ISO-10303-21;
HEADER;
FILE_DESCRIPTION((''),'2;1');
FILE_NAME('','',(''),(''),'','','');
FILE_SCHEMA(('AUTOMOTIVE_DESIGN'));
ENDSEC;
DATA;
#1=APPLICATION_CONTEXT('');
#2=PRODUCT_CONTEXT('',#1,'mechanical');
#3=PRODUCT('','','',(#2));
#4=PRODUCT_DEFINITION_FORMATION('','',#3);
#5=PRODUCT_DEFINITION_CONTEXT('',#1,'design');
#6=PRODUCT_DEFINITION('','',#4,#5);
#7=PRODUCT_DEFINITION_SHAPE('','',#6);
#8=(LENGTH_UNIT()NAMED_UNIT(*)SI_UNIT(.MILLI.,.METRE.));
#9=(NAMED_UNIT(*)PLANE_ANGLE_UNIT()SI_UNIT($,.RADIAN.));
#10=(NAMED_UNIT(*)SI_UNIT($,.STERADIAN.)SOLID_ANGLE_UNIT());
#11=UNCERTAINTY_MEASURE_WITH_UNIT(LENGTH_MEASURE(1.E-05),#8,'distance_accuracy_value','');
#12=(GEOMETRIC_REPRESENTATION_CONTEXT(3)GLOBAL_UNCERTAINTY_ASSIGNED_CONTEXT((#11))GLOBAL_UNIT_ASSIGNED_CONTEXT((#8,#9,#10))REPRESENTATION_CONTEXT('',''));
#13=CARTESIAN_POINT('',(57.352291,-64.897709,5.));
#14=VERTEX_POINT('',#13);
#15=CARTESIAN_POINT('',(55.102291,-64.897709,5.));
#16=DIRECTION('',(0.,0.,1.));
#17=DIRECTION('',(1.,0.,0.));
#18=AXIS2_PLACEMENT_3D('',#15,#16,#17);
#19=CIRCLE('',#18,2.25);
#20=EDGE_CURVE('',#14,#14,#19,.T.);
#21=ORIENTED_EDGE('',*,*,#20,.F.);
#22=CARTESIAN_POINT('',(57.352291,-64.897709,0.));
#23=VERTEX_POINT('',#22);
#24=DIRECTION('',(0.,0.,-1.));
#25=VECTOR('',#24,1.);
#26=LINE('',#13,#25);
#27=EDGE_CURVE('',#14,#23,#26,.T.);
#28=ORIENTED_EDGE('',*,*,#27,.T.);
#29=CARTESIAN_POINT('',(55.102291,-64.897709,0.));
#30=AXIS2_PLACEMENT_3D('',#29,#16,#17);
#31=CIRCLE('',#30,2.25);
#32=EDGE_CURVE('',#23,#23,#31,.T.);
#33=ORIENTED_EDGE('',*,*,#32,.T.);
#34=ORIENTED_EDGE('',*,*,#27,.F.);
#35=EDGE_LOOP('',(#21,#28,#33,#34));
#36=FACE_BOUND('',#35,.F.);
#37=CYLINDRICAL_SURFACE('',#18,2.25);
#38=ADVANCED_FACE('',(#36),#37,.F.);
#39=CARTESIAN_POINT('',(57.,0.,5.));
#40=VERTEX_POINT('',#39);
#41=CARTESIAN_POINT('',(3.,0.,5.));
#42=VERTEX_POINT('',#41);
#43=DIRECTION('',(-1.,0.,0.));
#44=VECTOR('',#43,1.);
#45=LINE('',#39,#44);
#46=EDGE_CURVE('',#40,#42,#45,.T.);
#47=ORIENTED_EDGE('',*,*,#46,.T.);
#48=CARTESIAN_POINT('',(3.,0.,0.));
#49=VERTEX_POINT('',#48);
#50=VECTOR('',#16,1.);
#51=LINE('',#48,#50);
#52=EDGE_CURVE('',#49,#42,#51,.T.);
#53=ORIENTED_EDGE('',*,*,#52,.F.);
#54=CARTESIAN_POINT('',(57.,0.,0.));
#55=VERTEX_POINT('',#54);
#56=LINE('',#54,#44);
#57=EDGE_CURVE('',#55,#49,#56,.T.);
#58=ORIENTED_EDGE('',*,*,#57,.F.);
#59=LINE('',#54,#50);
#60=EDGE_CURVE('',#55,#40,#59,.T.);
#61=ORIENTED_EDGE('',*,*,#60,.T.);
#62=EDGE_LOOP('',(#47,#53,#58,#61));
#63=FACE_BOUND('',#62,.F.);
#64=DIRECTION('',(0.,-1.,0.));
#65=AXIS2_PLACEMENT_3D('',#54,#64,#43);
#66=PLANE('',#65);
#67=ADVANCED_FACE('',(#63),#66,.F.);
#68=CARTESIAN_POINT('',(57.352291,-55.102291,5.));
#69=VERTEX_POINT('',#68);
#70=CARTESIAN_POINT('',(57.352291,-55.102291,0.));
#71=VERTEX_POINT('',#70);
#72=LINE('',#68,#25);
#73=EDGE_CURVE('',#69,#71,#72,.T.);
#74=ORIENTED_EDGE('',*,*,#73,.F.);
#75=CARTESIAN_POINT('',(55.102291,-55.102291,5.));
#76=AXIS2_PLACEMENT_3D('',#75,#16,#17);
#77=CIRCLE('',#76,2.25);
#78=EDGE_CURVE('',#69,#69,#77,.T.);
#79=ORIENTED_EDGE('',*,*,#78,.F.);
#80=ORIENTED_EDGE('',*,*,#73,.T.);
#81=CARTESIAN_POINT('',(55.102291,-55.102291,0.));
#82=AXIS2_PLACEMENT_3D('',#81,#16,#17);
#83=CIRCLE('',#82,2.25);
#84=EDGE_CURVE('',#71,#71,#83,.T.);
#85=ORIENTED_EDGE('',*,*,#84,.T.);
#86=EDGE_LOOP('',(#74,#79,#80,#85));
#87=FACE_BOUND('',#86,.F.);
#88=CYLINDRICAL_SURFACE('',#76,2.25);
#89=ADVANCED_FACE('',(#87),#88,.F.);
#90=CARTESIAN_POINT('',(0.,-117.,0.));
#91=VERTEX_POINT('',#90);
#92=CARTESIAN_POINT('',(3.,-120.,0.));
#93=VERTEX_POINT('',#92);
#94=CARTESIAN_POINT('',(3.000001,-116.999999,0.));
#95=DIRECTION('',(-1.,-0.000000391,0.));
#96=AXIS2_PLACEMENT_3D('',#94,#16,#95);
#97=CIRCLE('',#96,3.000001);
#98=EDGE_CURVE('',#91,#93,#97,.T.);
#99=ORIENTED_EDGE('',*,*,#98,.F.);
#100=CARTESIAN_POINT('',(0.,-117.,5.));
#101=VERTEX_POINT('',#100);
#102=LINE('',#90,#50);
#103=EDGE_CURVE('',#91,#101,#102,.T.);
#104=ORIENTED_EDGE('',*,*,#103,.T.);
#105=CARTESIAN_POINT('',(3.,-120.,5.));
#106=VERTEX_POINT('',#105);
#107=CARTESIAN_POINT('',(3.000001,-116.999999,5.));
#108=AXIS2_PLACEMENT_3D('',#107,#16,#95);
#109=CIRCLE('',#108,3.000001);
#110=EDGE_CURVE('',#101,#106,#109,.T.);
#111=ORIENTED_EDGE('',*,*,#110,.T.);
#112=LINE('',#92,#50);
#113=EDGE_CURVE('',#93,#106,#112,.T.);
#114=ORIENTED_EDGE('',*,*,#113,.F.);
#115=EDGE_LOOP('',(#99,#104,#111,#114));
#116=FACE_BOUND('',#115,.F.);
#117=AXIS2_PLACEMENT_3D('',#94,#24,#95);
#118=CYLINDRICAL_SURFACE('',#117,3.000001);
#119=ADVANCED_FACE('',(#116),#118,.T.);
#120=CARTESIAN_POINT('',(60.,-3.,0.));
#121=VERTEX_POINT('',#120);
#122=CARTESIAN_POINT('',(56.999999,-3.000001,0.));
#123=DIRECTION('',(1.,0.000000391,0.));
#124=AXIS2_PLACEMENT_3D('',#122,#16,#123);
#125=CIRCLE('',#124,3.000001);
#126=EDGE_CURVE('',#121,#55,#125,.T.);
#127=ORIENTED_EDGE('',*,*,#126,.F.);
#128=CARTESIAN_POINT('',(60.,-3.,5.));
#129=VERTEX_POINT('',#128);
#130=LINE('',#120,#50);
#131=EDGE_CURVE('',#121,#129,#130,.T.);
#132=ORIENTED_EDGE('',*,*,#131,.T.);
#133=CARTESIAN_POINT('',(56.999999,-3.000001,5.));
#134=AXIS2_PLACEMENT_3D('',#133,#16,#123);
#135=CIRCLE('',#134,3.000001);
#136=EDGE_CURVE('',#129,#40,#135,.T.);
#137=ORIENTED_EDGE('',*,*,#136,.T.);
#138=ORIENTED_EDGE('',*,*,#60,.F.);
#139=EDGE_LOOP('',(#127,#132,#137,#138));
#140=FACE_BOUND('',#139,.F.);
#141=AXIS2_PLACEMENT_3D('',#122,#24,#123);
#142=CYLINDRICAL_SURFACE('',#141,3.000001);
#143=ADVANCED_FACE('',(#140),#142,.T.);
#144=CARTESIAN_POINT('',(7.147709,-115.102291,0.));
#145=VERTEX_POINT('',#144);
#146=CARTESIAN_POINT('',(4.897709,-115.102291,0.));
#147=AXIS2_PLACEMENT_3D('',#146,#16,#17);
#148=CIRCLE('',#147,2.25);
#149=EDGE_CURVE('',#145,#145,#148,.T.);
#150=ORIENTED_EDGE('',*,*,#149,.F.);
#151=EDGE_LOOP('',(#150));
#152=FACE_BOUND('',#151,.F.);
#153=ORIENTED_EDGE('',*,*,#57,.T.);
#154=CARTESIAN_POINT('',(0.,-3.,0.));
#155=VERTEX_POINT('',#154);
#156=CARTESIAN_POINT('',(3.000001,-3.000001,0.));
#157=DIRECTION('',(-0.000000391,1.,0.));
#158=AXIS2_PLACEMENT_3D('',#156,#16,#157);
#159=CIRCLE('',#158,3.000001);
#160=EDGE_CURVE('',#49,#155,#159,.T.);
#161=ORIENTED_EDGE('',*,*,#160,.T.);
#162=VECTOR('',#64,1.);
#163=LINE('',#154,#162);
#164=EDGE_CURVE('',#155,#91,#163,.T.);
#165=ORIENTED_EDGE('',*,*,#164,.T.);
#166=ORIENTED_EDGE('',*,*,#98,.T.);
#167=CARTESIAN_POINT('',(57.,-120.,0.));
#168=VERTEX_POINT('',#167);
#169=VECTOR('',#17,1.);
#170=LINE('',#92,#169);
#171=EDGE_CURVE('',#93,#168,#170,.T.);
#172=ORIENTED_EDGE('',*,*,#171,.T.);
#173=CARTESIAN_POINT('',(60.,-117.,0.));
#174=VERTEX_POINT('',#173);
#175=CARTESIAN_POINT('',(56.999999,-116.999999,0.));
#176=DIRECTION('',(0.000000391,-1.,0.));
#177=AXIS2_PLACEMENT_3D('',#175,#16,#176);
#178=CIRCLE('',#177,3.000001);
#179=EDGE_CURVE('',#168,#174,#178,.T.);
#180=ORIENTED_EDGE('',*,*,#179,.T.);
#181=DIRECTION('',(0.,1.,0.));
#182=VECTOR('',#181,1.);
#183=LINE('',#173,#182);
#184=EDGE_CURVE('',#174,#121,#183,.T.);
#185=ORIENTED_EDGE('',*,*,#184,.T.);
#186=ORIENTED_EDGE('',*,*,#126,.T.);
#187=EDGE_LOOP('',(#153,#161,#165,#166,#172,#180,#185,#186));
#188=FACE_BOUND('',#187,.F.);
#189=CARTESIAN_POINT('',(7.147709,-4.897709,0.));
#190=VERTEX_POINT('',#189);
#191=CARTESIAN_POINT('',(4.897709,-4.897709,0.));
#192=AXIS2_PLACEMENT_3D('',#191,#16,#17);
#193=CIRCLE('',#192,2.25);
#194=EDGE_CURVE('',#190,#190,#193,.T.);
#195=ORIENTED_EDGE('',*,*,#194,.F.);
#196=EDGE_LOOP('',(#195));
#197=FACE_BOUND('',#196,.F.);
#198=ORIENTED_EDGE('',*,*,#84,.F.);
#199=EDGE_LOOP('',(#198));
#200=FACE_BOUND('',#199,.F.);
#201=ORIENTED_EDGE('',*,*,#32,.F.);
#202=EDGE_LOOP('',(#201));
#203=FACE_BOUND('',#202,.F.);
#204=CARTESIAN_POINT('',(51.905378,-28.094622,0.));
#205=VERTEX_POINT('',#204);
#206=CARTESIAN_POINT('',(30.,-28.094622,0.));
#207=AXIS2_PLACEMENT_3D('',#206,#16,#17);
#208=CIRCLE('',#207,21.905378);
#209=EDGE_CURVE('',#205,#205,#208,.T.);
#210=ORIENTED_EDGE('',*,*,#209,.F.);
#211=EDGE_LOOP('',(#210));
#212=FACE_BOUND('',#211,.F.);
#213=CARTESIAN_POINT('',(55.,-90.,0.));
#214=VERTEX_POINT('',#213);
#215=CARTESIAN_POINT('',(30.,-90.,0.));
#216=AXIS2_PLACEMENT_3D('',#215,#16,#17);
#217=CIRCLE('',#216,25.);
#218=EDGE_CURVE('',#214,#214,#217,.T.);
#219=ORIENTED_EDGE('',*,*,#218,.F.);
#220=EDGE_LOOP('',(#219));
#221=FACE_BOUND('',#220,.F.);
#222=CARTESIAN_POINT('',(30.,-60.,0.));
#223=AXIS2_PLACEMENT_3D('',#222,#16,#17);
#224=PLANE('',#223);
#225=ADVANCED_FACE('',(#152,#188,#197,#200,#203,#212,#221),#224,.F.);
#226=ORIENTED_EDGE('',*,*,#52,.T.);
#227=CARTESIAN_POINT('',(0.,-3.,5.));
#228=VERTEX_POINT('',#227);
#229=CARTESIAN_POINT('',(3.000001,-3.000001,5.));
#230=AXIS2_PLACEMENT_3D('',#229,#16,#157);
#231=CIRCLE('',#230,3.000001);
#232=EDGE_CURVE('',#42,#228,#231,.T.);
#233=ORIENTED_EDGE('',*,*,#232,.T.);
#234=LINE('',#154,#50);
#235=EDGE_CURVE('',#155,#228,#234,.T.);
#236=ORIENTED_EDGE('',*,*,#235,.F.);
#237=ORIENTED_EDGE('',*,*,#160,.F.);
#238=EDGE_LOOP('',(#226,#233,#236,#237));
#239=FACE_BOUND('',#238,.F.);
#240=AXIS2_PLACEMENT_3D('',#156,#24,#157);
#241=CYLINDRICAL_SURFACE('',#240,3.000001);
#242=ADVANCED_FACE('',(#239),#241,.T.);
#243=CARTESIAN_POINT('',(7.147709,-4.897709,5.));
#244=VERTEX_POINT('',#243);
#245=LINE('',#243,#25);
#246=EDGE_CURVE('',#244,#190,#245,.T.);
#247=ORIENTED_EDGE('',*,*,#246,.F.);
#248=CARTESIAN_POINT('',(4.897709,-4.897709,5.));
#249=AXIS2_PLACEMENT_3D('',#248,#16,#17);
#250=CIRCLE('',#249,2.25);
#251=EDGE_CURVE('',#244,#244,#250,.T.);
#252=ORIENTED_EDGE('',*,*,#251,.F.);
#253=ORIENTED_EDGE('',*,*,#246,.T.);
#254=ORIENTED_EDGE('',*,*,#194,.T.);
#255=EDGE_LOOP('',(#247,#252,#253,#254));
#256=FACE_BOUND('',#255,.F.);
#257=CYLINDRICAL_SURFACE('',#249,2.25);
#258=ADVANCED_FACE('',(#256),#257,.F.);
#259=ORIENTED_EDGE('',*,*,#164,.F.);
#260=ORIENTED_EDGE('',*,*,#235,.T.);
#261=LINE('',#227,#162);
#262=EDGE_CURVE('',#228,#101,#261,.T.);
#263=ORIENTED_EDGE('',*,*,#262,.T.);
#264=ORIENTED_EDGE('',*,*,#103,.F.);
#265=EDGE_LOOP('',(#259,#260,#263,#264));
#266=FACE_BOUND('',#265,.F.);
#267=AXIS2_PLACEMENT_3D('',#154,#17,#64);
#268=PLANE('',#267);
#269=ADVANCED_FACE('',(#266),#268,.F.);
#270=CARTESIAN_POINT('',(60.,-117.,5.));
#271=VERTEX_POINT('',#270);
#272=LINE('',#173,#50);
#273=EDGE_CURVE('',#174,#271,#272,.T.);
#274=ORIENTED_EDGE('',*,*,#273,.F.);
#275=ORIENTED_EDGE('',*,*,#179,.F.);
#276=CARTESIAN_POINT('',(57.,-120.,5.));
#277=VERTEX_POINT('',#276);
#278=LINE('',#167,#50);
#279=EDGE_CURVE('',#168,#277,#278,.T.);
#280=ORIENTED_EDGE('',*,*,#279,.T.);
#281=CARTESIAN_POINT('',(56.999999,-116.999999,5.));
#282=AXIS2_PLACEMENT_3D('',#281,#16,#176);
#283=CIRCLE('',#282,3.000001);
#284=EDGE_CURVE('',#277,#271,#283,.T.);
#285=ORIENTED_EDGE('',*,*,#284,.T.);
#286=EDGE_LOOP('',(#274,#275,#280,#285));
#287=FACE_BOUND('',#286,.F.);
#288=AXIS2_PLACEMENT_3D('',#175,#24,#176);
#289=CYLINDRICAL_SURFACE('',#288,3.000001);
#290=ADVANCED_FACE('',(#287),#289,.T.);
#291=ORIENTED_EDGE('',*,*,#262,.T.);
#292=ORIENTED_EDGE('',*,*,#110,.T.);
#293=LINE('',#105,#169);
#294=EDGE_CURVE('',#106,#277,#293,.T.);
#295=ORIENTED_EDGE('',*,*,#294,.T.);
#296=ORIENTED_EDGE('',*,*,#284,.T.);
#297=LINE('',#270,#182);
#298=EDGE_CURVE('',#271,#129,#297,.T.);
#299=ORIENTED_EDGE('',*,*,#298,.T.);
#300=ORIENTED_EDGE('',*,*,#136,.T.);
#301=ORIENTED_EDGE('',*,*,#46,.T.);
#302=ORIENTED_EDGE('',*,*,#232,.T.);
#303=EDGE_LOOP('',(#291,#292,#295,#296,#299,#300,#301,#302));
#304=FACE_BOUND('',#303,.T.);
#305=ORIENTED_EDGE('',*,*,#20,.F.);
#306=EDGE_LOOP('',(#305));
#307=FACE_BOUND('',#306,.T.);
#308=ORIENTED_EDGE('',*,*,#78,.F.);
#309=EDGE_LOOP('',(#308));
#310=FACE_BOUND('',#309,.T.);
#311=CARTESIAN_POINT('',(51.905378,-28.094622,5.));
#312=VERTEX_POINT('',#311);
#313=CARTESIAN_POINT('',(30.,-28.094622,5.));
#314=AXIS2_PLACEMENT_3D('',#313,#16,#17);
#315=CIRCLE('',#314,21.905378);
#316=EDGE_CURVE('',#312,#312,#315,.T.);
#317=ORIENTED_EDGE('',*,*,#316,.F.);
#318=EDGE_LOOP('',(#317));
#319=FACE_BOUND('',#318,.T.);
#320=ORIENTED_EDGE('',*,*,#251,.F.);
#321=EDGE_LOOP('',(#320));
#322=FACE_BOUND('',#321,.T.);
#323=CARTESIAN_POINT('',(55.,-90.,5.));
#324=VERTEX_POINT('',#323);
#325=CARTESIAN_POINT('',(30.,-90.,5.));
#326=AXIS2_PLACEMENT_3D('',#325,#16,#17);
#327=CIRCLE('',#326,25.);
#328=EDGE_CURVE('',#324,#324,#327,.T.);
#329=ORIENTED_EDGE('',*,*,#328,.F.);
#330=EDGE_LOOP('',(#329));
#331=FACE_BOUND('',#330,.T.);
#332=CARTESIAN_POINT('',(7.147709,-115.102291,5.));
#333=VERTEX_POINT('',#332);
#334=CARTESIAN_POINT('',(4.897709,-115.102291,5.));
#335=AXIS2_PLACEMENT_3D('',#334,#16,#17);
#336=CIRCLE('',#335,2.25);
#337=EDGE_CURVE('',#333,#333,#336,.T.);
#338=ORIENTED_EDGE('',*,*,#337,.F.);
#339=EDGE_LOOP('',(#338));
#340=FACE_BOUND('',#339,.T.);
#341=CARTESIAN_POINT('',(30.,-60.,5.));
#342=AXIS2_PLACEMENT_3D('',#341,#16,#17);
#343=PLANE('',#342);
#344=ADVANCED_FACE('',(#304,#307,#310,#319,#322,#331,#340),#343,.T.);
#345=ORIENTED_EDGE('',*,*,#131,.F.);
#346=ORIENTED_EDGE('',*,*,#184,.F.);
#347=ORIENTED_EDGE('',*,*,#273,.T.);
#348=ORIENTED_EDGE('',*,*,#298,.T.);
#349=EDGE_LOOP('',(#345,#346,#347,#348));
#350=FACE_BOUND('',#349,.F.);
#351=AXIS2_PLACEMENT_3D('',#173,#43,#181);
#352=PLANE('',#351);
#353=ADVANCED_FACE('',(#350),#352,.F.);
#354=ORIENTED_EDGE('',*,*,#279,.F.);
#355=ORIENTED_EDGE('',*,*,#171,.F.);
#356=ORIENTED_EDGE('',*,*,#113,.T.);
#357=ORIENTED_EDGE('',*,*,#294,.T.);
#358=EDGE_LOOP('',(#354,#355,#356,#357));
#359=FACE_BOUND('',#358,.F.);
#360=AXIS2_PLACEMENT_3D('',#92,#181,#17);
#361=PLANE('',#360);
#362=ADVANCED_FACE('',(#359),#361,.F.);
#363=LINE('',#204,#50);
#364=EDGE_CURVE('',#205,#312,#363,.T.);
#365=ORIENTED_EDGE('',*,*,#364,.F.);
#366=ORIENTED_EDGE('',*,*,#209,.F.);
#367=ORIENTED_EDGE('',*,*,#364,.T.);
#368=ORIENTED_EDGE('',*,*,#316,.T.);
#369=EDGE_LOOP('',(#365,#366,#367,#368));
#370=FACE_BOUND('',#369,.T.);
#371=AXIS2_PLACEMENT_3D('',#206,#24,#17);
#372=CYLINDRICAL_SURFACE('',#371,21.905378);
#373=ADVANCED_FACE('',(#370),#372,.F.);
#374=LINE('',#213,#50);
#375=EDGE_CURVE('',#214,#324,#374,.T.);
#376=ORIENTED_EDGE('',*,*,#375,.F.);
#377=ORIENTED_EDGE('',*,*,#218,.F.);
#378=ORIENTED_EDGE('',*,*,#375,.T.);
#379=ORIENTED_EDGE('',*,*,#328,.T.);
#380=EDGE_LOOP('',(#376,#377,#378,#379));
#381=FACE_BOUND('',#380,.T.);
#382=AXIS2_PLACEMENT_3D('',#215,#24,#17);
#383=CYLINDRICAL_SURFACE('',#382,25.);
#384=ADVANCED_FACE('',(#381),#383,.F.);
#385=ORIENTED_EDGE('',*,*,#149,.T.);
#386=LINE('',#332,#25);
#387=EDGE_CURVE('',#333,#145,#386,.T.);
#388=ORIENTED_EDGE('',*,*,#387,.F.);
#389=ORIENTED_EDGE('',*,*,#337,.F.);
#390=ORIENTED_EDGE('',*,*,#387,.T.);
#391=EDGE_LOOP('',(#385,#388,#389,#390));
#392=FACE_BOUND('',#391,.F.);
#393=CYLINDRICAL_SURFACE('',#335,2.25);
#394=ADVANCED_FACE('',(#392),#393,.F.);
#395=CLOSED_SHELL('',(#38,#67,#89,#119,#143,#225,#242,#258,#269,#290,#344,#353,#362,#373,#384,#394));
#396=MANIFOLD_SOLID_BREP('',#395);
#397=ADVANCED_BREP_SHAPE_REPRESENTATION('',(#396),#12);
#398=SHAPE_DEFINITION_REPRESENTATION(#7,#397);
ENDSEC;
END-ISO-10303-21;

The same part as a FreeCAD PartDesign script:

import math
import FreeCAD as App
import Part
import Sketcher

V = App.Vector

doc = App.newDocument("Part")
body = doc.addObject("PartDesign::Body", "Body")

# Sketch on XY plane
sketch1 = doc.addObject("Sketcher::SketchObject", "Sketch")
body.addObject(sketch1)
sketch1.AttachmentSupport = (doc.XY_Plane, [""])
sketch1.MapMode = "FlatFace"
sketch1.addGeometry(Part.LineSegment(V(57, 0, 0), V(3, 0, 0)), False)
sketch1.addGeometry(Part.ArcOfCircle(Part.Circle(V(3, -3, 0), V(0, 0, 1), 3), math.radians(90), math.radians(180)), False)
sketch1.addGeometry(Part.LineSegment(V(0, -3, 0), V(0, -117, 0)), False)
sketch1.addGeometry(Part.ArcOfCircle(Part.Circle(V(3, -117, 0), V(0, 0, 1), 3), math.radians(-180), math.radians(-90)), False)
sketch1.addGeometry(Part.LineSegment(V(3, -120, 0), V(57, -120, 0)), False)
sketch1.addGeometry(Part.ArcOfCircle(Part.Circle(V(57, -117, 0), V(0, 0, 1), 3), math.radians(-90), math.radians(0)), False)
sketch1.addGeometry(Part.LineSegment(V(60, -117, 0), V(60, -3, 0)), False)
sketch1.addGeometry(Part.ArcOfCircle(Part.Circle(V(57, -3, 0), V(0, 0, 1), 3), math.radians(0), math.radians(90)), False)
sketch1.addGeometry(Part.Circle(V(30, -90, 0), V(0, 0, 1), 25), False)
sketch1.addGeometry(Part.Circle(V(30, -28.1, 0), V(0, 0, 1), 21.9), False)
sketch1.addConstraint(Sketcher.Constraint("Tangent", 0, 2, 1, 1))
sketch1.addConstraint(Sketcher.Constraint("Tangent", 1, 2, 2, 1))
sketch1.addConstraint(Sketcher.Constraint("Tangent", 2, 2, 3, 1))
sketch1.addConstraint(Sketcher.Constraint("Tangent", 3, 2, 4, 1))
sketch1.addConstraint(Sketcher.Constraint("Tangent", 4, 2, 5, 1))
sketch1.addConstraint(Sketcher.Constraint("Tangent", 5, 2, 6, 1))
sketch1.addConstraint(Sketcher.Constraint("Tangent", 6, 2, 7, 1))
sketch1.addConstraint(Sketcher.Constraint("Tangent", 7, 2, 0, 1))
sketch1.addConstraint(Sketcher.Constraint("Horizontal", 0))
sketch1.addConstraint(Sketcher.Constraint("Vertical", 2))
sketch1.addConstraint(Sketcher.Constraint("Horizontal", 4))
sketch1.addConstraint(Sketcher.Constraint("Vertical", 6))
sketch1.addConstraint(Sketcher.Constraint("Equal", 1, 3))
sketch1.addConstraint(Sketcher.Constraint("Equal", 3, 5))
sketch1.addConstraint(Sketcher.Constraint("Equal", 5, 7))
sketch1.addConstraint(Sketcher.Constraint("PointOnObject", 0, 2, -1))
sketch1.addConstraint(Sketcher.Constraint("PointOnObject", 1, 2, -2))
sketch1.addConstraint(Sketcher.Constraint("Vertical", 8, 3, 9, 3))
sketch1.addConstraint(Sketcher.Constraint("Diameter", 8, 50.0))
sketch1.addConstraint(Sketcher.Constraint("Radius", 1, 3.000001))
sketch1.addConstraint(Sketcher.Constraint("DistanceX", 0, 2, 0, 1, 54.0))
sketch1.addConstraint(Sketcher.Constraint("DistanceY", 2, 2, 2, 1, 114.0))
sketch1.addConstraint(Sketcher.Constraint("DistanceX", -1, 1, 8, 3, 30.0))
sketch1.addConstraint(Sketcher.Constraint("DistanceY", 8, 3, -1, 1, 90.0))
sketch1.addConstraint(Sketcher.Constraint("Diameter", 9, 43.810756))
sketch1.addConstraint(Sketcher.Constraint("DistanceY", 9, 3, 1, 3, 25.094621))
pad1 = doc.addObject("PartDesign::Pad", "Pad")
body.addObject(pad1)
pad1.Profile = sketch1
pad1.Length = 5

# Sketch on XY plane
sketch2 = doc.addObject("Sketcher::SketchObject", "Sketch001")
body.addObject(sketch2)
sketch2.AttachmentSupport = (doc.XY_Plane, [""])
sketch2.MapMode = "FlatFace"
sketch2.AttachmentOffset = App.Placement(V(0, 0, 5), App.Rotation())
sketch2.addGeometry(Part.Circle(V(4.9, -115.1, 0), V(0, 0, 1), 2.2), False)
sketch2.addGeometry(Part.Circle(V(55.1, -64.9, 0), V(0, 0, 1), 2.2), False)
sketch2.addGeometry(Part.Circle(V(55.1, -55.1, 0), V(0, 0, 1), 2.2), False)
sketch2.addGeometry(Part.Circle(V(4.9, -4.9, 0), V(0, 0, 1), 2.2), False)
sketch2.addConstraint(Sketcher.Constraint("Equal", 0, 1))
sketch2.addConstraint(Sketcher.Constraint("Equal", 1, 2))
sketch2.addConstraint(Sketcher.Constraint("Equal", 2, 3))
sketch2.addConstraint(Sketcher.Constraint("Vertical", 1, 3, 2, 3))
sketch2.addConstraint(Sketcher.Constraint("Vertical", 0, 3, 3, 3))
sketch2.addConstraint(Sketcher.Constraint("Diameter", 0, 4.5))
sketch2.addConstraint(Sketcher.Constraint("DistanceY", 0, 3, 2, 3, 60.0))
sketch2.addConstraint(Sketcher.Constraint("DistanceY", 1, 3, 3, 3, 60.0))
sketch2.addConstraint(Sketcher.Constraint("DistanceX", -1, 1, 0, 3, 4.897709))
sketch2.addConstraint(Sketcher.Constraint("DistanceY", 0, 3, -1, 1, 115.102291))
sketch2.addConstraint(Sketcher.Constraint("DistanceX", -1, 1, 1, 3, 55.102291))
sketch2.addConstraint(Sketcher.Constraint("DistanceY", 1, 3, -1, 1, 64.897709))
pocket1 = doc.addObject("PartDesign::Pocket", "Pocket")
body.addObject(pocket1)
pocket1.Profile = sketch2
pocket1.Length = 25

doc.recompute()
